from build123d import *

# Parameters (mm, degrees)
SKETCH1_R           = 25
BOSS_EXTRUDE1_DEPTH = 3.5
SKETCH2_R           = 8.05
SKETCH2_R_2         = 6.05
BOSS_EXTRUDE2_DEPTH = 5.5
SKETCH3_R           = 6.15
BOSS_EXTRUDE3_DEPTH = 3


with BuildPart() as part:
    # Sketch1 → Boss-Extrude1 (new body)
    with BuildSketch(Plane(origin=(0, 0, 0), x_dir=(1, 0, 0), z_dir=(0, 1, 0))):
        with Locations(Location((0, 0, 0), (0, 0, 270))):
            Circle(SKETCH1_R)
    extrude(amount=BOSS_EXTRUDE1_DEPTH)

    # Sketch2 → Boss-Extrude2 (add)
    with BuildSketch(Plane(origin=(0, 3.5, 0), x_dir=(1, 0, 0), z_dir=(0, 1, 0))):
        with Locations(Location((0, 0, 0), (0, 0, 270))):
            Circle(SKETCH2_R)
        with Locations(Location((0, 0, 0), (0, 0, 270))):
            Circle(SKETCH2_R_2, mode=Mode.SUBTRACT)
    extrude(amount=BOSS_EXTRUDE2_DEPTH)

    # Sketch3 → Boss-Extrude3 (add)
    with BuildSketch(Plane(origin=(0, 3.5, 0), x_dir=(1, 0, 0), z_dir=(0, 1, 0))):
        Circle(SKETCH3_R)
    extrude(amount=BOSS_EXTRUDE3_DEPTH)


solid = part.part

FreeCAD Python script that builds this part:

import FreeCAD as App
import Part
import Sketcher
from FreeCAD import Vector
Q = App.Units.Quantity

doc = App.newDocument("Part")
params = doc.addObject("Spreadsheet::Sheet", "Params")
for row, (alias, value) in enumerate([
    ("sketch1_diameter", "50 mm"),
    ("pad1_length", "3.5 mm"),
    ("sketch2_diameter", "16.1 mm"),
    ("sketch2_diameter2", "12.1 mm"),
    ("pad2_length", "5.5 mm"),
    ("sketch3_diameter", "12.3 mm"),
    ("pad3_length", "3 mm"),
], start=1):
    params.set(f"A{row}", alias)
    params.set(f"B{row}", "=" + value)
    params.setAlias(f"B{row}", alias)

body = doc.addObject("PartDesign::Body", "Body")

# Sketch on XZ plane
sketch1 = body.newObject("Sketcher::SketchObject", "Sketch")
sketch1.AttachmentSupport = (doc.getObject("XZ_Plane"), [""])
sketch1.MapMode = "FlatFace"
sketch1.addGeometry(Part.Circle(Vector(0, 0, 0), Vector(0, 0, 1), 25), False)
sketch1.addConstraint([
    Sketcher.Constraint("Coincident", 0, 3, -1, 1),
    Sketcher.Constraint("Diameter", 0, Q("50 mm")),
])
sketch1.setExpression("Constraints[1]", "Params.sketch1_diameter")
pad1 = body.newObject("PartDesign::Pad", "Pad")
pad1.Profile = sketch1
pad1.setExpression("Length", "Params.pad1_length")
pad1.Reversed = True

# Sketch on XZ plane
sketch2 = body.newObject("Sketcher::SketchObject", "Sketch001")
sketch2.AttachmentSupport = (doc.getObject("XZ_Plane"), [""])
sketch2.MapMode = "FlatFace"
sketch2.AttachmentOffset = App.Placement(Vector(0, 0, -3.5), App.Rotation())
sketch2.addGeometry([
    Part.Circle(Vector(0, 0, 0), Vector(0, 0, 1), 8),
    Part.Circle(Vector(0, 0, 0), Vector(0, 0, 1), 6),
], False)
sketch2.addConstraint([
    Sketcher.Constraint("Coincident", 0, 3, -1, 1),
    Sketcher.Constraint("Coincident", 1, 3, -1, 1),
    Sketcher.Constraint("Diameter", 0, Q("16.1 mm")),
    Sketcher.Constraint("Diameter", 1, Q("12.1 mm")),
])
sketch2.setExpression("Constraints[2]", "Params.sketch2_diameter")
sketch2.setExpression("Constraints[3]", "Params.sketch2_diameter2")
pad2 = body.newObject("PartDesign::Pad", "Pad001")
pad2.Profile = sketch2
pad2.setExpression("Length", "Params.pad2_length")
pad2.Reversed = True

# Sketch on XZ plane
sketch3 = body.newObject("Sketcher::SketchObject", "Sketch002")
sketch3.AttachmentSupport = (doc.getObject("XZ_Plane"), [""])
sketch3.MapMode = "FlatFace"
sketch3.AttachmentOffset = App.Placement(Vector(0, 0, -3.5), App.Rotation())
sketch3.addGeometry(Part.Circle(Vector(0, 0, 0), Vector(0, 0, 1), 6), False)
sketch3.addConstraint([
    Sketcher.Constraint("Coincident", 0, 3, -1, 1),
    Sketcher.Constraint("Diameter", 0, Q("12.3 mm")),
])
sketch3.setExpression("Constraints[1]", "Params.sketch3_diameter")
pad3 = body.newObject("PartDesign::Pad", "Pad002")
pad3.Profile = sketch3
pad3.setExpression("Length", "Params.pad3_length")
pad3.Reversed = True

doc.recompute()
